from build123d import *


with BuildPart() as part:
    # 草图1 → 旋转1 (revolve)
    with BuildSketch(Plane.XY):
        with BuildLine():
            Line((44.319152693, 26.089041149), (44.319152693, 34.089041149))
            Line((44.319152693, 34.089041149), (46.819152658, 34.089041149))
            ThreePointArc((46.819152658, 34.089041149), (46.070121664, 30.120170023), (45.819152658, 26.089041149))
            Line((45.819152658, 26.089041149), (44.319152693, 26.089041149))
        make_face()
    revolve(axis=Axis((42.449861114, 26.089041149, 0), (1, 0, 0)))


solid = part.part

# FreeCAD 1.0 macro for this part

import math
import FreeCAD as App
import Part
import Sketcher

V = App.Vector
Q = App.Units.Quantity

doc = App.newDocument("Part")
params = doc.addObject("Spreadsheet::Sheet", "Params")
for row, (alias, value) in enumerate([
    ("sketch1_radius", "32.5 mm"),
    ("sketch1_width", "34 mm"),
    ("sketch1_height", "8 mm"),
    ("revolution_angle", "360 deg"),
], start=1):
    params.set(f"A{row}", alias)
    params.set(f"B{row}", "=" + value)
    params.setAlias(f"B{row}", alias)

body = doc.addObject("PartDesign::Body", "Body")

sketch1 = doc.addObject("Sketcher::SketchObject", "Sketch")
body.addObject(sketch1)
sketch1.AttachmentSupport = (doc.XY_Plane, [""])
sketch1.MapMode = "FlatFace"
sketch1.addGeometry([
    Part.LineSegment(V(44.3, 34.1, 0), V(44.3, 26.1, 0)),
    Part.LineSegment(V(44.3, 26.1, 0), V(45.8, 26.1, 0)),
    Part.ArcOfCircle(Part.Circle(V(78.3, 26.1, 0), V(0, 0, 1), 32.5), math.radians(165.75), math.radians(180)),
    Part.LineSegment(V(46.8, 34.1, 0), V(44.3, 34.1, 0)),
], False)
sketch1.addGeometry(Part.LineSegment(V(44.3, 26.1, 0), V(78.3, 26.1, 0)), True)
sketch1.addConstraint([
    Sketcher.Constraint("Coincident", 0, 2, 1, 1),
    Sketcher.Constraint("Coincident", 1, 2, 2, 2),
    Sketcher.Constraint("Coincident", 2, 1, 3, 1),
    Sketcher.Constraint("Coincident", 3, 2, 0, 1),
    Sketcher.Constraint("Vertical", 0),
    Sketcher.Constraint("Horizontal", 1),
    Sketcher.Constraint("Horizontal", 3),
    Sketcher.Constraint("Horizontal", 4),
    Sketcher.Constraint("Coincident", 4, 1, 0, 2),
    Sketcher.Constraint("Coincident", 4, 2, 2, 3),
    Sketcher.Constraint("Radius", 2, Q("32.5 mm")),
    Sketcher.Constraint("DistanceX", 4, 1, 4, 2, Q("34 mm")),
    Sketcher.Constraint("DistanceY", 0, 2, 0, 1, Q("8 mm")),
    Sketcher.Constraint("DistanceY", -1, 1, 2, 3, Q("26.089041 mm")),
    Sketcher.Constraint("DistanceX", -1, 1, 2, 3, Q("78.319153 mm")),
])
sketch1.setExpression("Constraints[10]", "Params.sketch1_radius")
sketch1.setExpression("Constraints[11]", "Params.sketch1_width")
sketch1.setExpression("Constraints[12]", "Params.sketch1_height")
revolution = doc.addObject("PartDesign::Revolution", "Revolution")
body.addObject(revolution)
revolution.Profile = sketch1
revolution.ReferenceAxis = (sketch1, ["Axis0"])
revolution.setExpression("Angle", "Params.revolution_angle")

doc.recompute()
